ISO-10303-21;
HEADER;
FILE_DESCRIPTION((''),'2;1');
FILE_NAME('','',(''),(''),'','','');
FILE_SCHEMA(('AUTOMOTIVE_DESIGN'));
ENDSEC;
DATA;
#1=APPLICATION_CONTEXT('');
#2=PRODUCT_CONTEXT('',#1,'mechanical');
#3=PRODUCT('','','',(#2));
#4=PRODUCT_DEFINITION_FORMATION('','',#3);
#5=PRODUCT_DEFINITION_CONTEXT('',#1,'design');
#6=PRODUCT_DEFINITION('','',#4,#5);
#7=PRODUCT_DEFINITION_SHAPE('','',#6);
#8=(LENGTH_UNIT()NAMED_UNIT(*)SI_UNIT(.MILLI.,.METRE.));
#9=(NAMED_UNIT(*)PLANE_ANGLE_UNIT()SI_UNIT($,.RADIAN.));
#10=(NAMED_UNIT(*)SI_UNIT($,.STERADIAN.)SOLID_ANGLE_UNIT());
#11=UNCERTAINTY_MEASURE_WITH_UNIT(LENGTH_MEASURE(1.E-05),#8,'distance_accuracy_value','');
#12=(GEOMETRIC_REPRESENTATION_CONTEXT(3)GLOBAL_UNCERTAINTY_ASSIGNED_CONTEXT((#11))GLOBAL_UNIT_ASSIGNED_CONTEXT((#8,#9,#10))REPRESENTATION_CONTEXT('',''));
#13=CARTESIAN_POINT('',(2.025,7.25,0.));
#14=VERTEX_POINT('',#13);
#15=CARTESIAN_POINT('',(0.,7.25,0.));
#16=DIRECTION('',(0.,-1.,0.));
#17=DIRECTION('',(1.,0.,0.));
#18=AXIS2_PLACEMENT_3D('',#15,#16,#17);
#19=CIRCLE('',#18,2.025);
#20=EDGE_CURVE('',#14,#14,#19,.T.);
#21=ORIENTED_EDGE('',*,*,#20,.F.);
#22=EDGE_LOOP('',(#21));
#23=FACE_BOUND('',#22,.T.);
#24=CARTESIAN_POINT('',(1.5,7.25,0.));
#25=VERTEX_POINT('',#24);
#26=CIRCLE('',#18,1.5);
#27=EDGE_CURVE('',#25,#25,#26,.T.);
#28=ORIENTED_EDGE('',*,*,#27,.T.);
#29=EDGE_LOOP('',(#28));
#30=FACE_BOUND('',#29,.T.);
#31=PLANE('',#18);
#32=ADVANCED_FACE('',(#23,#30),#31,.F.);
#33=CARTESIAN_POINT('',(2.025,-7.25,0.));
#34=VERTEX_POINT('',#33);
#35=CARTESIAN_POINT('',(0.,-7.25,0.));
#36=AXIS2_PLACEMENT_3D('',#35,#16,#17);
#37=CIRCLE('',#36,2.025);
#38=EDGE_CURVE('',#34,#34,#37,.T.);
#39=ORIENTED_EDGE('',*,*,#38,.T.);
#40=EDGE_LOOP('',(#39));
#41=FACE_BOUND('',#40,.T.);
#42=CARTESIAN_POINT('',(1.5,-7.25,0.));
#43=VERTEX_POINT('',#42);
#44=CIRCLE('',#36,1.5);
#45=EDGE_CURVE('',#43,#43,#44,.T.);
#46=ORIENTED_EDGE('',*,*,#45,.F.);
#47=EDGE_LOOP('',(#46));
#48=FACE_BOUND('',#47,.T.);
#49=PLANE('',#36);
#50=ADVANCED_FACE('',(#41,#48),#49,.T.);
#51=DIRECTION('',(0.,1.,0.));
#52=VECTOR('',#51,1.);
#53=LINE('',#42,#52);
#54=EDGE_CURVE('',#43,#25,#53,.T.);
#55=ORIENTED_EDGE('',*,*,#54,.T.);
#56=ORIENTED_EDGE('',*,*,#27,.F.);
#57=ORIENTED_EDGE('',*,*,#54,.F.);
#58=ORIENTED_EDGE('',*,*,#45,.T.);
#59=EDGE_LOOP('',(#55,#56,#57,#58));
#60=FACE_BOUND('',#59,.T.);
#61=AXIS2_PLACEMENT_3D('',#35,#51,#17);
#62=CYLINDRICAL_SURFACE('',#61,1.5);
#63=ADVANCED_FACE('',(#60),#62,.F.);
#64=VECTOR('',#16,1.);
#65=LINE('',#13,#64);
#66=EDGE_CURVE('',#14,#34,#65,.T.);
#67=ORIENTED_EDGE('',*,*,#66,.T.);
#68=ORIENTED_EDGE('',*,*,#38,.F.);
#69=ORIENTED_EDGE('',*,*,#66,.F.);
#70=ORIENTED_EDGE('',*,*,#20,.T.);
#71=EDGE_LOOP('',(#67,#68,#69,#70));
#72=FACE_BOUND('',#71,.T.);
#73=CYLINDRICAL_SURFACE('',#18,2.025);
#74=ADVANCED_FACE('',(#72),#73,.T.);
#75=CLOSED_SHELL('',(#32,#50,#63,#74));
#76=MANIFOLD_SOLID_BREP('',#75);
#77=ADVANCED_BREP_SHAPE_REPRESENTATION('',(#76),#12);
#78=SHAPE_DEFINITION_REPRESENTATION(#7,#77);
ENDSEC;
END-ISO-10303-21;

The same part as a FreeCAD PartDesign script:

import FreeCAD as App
import Part
import Sketcher
from FreeCAD import Vector

doc = App.newDocument("Part")
params = doc.addObject("Spreadsheet::Sheet", "Params")
for row, (alias, value) in enumerate([
    ("sketch1_height", "14.5 mm"),
    ("revolution_angle", "360 deg"),
], start=1):
    params.set(f"A{row}", alias)
    params.set(f"B{row}", "=" + value)
    params.setAlias(f"B{row}", alias)

body = doc.addObject("PartDesign::Body", "Body")

sketch1 = doc.addObject("Sketcher::SketchObject", "Sketch")
body.addObject(sketch1)
sketch1.AttachmentSupport = (doc.XY_Plane, [""])
sketch1.MapMode = "FlatFace"
sketch1.addGeometry([
    Part.LineSegment(Vector(2, 7.2, 0), Vector(1.5, 7.2, 0)),
    Part.LineSegment(Vector(1.5, 7.2, 0), Vector(1.5, -7.2, 0)),
    Part.LineSegment(Vector(1.5, -7.2, 0), Vector(2, -7.2, 0)),
    Part.LineSegment(Vector(2, -7.2, 0), Vector(2, 7.2, 0)),
], False)
sketch1.addConstraint([
    Sketcher.Constraint("Coincident", 0, 2, 1, 1),
    Sketcher.Constraint("Coincident", 1, 2, 2, 1),
    Sketcher.Constraint("Coincident", 2, 2, 3, 1),
    Sketcher.Constraint("Coincident", 3, 2, 0, 1),
    Sketcher.Constraint("Horizontal", 0),
    Sketcher.Constraint("Vertical", 1),
    Sketcher.Constraint("Horizontal", 2),
    Sketcher.Constraint("Vertical", 3),
    Sketcher.Constraint("DistanceY", 1, 2, 1, 1, 14.5),
    Sketcher.Constraint("DistanceX", -1, 1, 0, 2, 1.5),
    Sketcher.Constraint("DistanceX", 0, 2, 0, 1, 0.525),
    Sketcher.Constraint("DistanceY", -1, 1, 0, 2, 7.25),
])
sketch1.setExpression("Constraints[8]", "Params.sketch1_height")
revolution = doc.addObject("PartDesign::Revolution", "Revolution")
body.addObject(revolution)
revolution.Profile = sketch1
revolution.ReferenceAxis = (sketch1, ["V_Axis"])
revolution.setExpression("Angle", "Params.revolution_angle")

doc.recompute()
